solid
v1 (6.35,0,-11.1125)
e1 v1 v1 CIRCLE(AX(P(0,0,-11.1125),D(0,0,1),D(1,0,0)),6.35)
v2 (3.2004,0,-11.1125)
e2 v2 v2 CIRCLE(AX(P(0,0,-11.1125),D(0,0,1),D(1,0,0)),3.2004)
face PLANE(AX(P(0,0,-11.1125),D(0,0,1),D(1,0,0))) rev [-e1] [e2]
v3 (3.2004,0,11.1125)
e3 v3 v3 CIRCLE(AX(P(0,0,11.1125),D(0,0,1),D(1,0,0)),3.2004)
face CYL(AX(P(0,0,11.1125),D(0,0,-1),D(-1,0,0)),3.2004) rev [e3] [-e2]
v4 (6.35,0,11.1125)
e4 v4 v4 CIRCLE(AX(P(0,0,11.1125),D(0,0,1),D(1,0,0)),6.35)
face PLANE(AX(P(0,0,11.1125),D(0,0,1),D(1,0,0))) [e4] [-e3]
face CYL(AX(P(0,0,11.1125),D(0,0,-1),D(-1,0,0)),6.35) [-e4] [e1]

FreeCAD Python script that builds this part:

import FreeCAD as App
import Part
import Sketcher

V = App.Vector
Q = App.Units.Quantity

doc = App.newDocument("Part")
params = doc.addObject("Spreadsheet::Sheet", "Params")
for row, (alias, value) in enumerate([
    ("sketch1_diameter", "0.5 in"),
    ("sketch1_diameter2", "0.252 in"),
    ("pad1_length", "0.875 in"),
], start=1):
    params.set(f"A{row}", alias)
    params.set(f"B{row}", "=" + value)
    params.setAlias(f"B{row}", alias)

body = doc.addObject("PartDesign::Body", "Body")

# Sketch on XY plane
sketch1 = body.newObject("Sketcher::SketchObject", "Sketch")
sketch1.AttachmentSupport = (doc.getObject("XY_Plane"), [""])
sketch1.MapMode = "FlatFace"
sketch1.addGeometry([
    Part.Circle(V(0, 0, 0), V(0, 0, 1), 6.3),
    Part.Circle(V(0, 0, 0), V(0, 0, 1), 3.2),
], False)
sketch1.addConstraint([
    Sketcher.Constraint("Coincident", 0, 3, -1, 1),
    Sketcher.Constraint("Coincident", 1, 3, -1, 1),
    Sketcher.Constraint("Diameter", 0, Q("0.5 in")),
    Sketcher.Constraint("Diameter", 1, Q("0.252 in")),
])
sketch1.setExpression("Constraints[2]", "Params.sketch1_diameter")
sketch1.setExpression("Constraints[3]", "Params.sketch1_diameter2")
pad1 = body.newObject("PartDesign::Pad", "Pad")
pad1.Profile = sketch1
pad1.setExpression("Length", "Params.pad1_length")
pad1.Midplane = True

doc.recompute()
